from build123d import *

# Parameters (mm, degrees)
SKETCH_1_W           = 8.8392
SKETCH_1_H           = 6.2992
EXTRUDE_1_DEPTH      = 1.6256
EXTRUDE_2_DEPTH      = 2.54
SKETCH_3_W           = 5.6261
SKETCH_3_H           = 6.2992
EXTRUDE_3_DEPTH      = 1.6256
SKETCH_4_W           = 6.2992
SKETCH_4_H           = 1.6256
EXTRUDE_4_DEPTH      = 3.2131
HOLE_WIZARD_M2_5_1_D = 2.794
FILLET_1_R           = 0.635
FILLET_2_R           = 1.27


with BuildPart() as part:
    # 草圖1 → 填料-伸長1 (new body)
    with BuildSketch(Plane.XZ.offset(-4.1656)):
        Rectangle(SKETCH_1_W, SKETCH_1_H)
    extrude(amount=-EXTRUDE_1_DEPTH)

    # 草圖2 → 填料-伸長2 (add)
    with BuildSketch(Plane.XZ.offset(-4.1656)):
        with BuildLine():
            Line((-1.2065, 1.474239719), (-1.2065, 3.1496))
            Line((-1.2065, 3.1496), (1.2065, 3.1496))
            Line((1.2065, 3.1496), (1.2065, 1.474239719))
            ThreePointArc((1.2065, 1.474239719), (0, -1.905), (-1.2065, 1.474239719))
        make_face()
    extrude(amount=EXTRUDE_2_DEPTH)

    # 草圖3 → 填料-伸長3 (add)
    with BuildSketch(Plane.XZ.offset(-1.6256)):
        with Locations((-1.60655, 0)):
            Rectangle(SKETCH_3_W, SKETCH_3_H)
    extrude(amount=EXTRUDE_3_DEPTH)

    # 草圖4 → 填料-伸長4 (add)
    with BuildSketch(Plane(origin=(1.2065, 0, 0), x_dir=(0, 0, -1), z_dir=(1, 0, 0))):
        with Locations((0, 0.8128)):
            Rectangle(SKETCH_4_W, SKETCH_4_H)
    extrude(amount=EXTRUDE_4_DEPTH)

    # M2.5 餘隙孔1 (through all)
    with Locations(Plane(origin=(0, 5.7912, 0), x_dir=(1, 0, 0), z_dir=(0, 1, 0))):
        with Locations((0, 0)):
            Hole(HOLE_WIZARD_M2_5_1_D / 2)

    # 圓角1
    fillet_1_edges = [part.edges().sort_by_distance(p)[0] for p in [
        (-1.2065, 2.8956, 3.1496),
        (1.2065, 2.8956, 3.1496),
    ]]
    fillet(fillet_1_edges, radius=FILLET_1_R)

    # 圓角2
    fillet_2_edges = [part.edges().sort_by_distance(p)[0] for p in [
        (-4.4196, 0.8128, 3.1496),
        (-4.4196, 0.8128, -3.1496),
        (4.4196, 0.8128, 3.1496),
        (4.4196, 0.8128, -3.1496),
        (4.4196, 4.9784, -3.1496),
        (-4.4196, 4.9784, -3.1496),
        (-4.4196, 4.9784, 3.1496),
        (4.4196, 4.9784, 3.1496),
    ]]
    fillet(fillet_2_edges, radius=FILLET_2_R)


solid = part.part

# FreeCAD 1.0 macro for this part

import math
import FreeCAD as App
import Part
import Sketcher
Q = App.Units.Quantity


def edges_at(feature, points):
    """Names of the edges that pass closest to the given points."""
    edges = feature.Shape.Edges
    near = lambda p: min(range(len(edges)), key=lambda i: edges[i].distToShape(Part.Vertex(*p))[0])
    return sorted({f"Edge{near(p) + 1}" for p in points})

doc = App.newDocument("Part")
body = doc.addObject("PartDesign::Body", "Body")

sketch1 = body.newObject("Sketcher::SketchObject", "Sketch")
sketch1.AttachmentSupport = (doc.getObject("XZ_Plane"), [""])
sketch1.MapMode = "FlatFace"
sketch1.AttachmentOffset = App.Placement(App.Vector(0, 0, -0.164 * 25.4), App.Rotation())
sketch1.addGeometry([
    Part.LineSegment(App.Vector(-4, 3, 0), App.Vector(-4, -3, 0)),
    Part.LineSegment(App.Vector(-4, -3, 0), App.Vector(4, -3, 0)),
    Part.LineSegment(App.Vector(4, -3, 0), App.Vector(4, 3, 0)),
    Part.LineSegment(App.Vector(4, 3, 0), App.Vector(-4, 3, 0)),
], False)
sketch1.addConstraint([
    Sketcher.Constraint("Coincident", 0, 2, 1, 1),
    Sketcher.Constraint("Coincident", 1, 2, 2, 1),
    Sketcher.Constraint("Coincident", 2, 2, 3, 1),
    Sketcher.Constraint("Coincident", 3, 2, 0, 1),
    Sketcher.Constraint("Vertical", 0),
    Sketcher.Constraint("Horizontal", 1),
    Sketcher.Constraint("Vertical", 2),
    Sketcher.Constraint("Horizontal", 3),
    Sketcher.Constraint("Symmetric", 0, 2, 2, 2, -1, 1),
    Sketcher.Constraint("DistanceX", 1, 1, 1, 2, Q("0.348 in")),
    Sketcher.Constraint("DistanceY", 0, 2, 0, 1, Q("0.248 in")),
])
pad1 = body.newObject("PartDesign::Pad", "Pad")
pad1.Profile = sketch1
pad1.Length = Q("0.064 in")
pad1.Reversed = True

sketch2 = body.newObject("Sketcher::SketchObject", "Sketch001")
sketch2.AttachmentSupport = (doc.getObject("XZ_Plane"), [""])
sketch2.MapMode = "FlatFace"
sketch2.AttachmentOffset = App.Placement(App.Vector(0, 0, -0.164 * 25.4), App.Rotation())
sketch2.addGeometry([
    Part.LineSegment(App.Vector(-1.2, 3.1, 0), App.Vector(-1.2, 1.5, 0)),
    Part.ArcOfCircle(Part.Circle(App.Vector(0, 0, 0), App.Vector(0, 0, 1), 1.9), math.radians(129), math.radians(411)),
    Part.LineSegment(App.Vector(1.2, 1.5, 0), App.Vector(1.2, 3.1, 0)),
    Part.LineSegment(App.Vector(1.2, 3.1, 0), App.Vector(-1.2, 3.1, 0)),
], False)
sketch2.addConstraint([
    Sketcher.Constraint("Coincident", 0, 2, 1, 1),
    Sketcher.Constraint("Coincident", 1, 2, 2, 1),
    Sketcher.Constraint("Coincident", 2, 2, 3, 1),
    Sketcher.Constraint("Coincident", 3, 2, 0, 1),
    Sketcher.Constraint("Vertical", 0),
    Sketcher.Constraint("Vertical", 2),
    Sketcher.Constraint("Horizontal", 3),
    Sketcher.Constraint("Coincident", 1, 3, -1, 1),
    Sketcher.Constraint("Horizontal", 0, 2, 1, 2),
    Sketcher.Constraint("Radius", 1, Q("0.075 in")),
    Sketcher.Constraint("DistanceX", 3, 2, 3, 1, Q("0.095 in")),
    Sketcher.Constraint("DistanceY", -1, 1, 2, 2, Q("0.124 in")),
])
pad2 = body.newObject("PartDesign::Pad", "Pad001")
pad2.Profile = sketch2
pad2.Length = Q("0.1 in")

sketch3 = body.newObject("Sketcher::SketchObject", "Sketch002")
sketch3.AttachmentSupport = (doc.getObject("XZ_Plane"), [""])
sketch3.MapMode = "FlatFace"
sketch3.AttachmentOffset = App.Placement(App.Vector(0, 0, -0.064 * 25.4), App.Rotation())
sketch3.addGeometry([
    Part.LineSegment(App.Vector(-4, 3, 0), App.Vector(-4, -3, 0)),
    Part.LineSegment(App.Vector(-4, -3, 0), App.Vector(1, -3, 0)),
    Part.LineSegment(App.Vector(1, -3, 0), App.Vector(1, 3, 0)),
    Part.LineSegment(App.Vector(1, 3, 0), App.Vector(-4, 3, 0)),
], False)
sketch3.addConstraint([
    Sketcher.Constraint("Coincident", 0, 2, 1, 1),
    Sketcher.Constraint("Coincident", 1, 2, 2, 1),
    Sketcher.Constraint("Coincident", 2, 2, 3, 1),
    Sketcher.Constraint("Coincident", 3, 2, 0, 1),
    Sketcher.Constraint("Vertical", 0),
    Sketcher.Constraint("Horizontal", 1),
    Sketcher.Constraint("Vertical", 2),
    Sketcher.Constraint("Horizontal", 3),
    Sketcher.Constraint("DistanceY", 0, 2, 0, 1, Q("0.248 in")),
    Sketcher.Constraint("DistanceX", 1, 1, 1, 2, Q("0.2215 in")),
    Sketcher.Constraint("DistanceX", 0, 2, -1, 1, Q("0.174 in")),
    Sketcher.Constraint("DistanceY", 0, 2, -1, 1, Q("0.124 in")),
])
pad3 = body.newObject("PartDesign::Pad", "Pad002")
pad3.Profile = sketch3
pad3.Length = Q("0.064 in")

sketch4 = body.newObject("Sketcher::SketchObject", "Sketch003")
sketch4.AttachmentSupport = (doc.getObject("YZ_Plane"), [""])
sketch4.MapMode = "FlatFace"
sketch4.AttachmentOffset = App.Placement(App.Vector(0, 0, 0.0475 * 25.4), App.Rotation())
sketch4.addGeometry([
    Part.LineSegment(App.Vector(1.6, 3.1, 0), App.Vector(0, 3.1, 0)),
    Part.LineSegment(App.Vector(0, 3.1, 0), App.Vector(0, -3.1, 0)),
    Part.LineSegment(App.Vector(0, -3.1, 0), App.Vector(1.6, -3.1, 0)),
    Part.LineSegment(App.Vector(1.6, -3.1, 0), App.Vector(1.6, 3.1, 0)),
], False)
sketch4.addConstraint([
    Sketcher.Constraint("Coincident", 0, 2, 1, 1),
    Sketcher.Constraint("Coincident", 1, 2, 2, 1),
    Sketcher.Constraint("Coincident", 2, 2, 3, 1),
    Sketcher.Constraint("Coincident", 3, 2, 0, 1),
    Sketcher.Constraint("Horizontal", 0),
    Sketcher.Constraint("Vertical", 1),
    Sketcher.Constraint("Horizontal", 2),
    Sketcher.Constraint("Vertical", 3),
    Sketcher.Constraint("Symmetric", 0, 2, 1, 2, -1, 1),
    Sketcher.Constraint("DistanceX", 0, 2, 0, 1, Q("0.064 in")),
    Sketcher.Constraint("DistanceY", 1, 2, 1, 1, Q("0.248 in")),
])
pad4 = body.newObject("PartDesign::Pad", "Pad003")
pad4.Profile = sketch4
pad4.Length = Q("0.1265 in")

sketch5 = body.newObject("Sketcher::SketchObject", "Sketch004")
sketch5.AttachmentSupport = (doc.getObject("XZ_Plane"), [""])
sketch5.MapMode = "FlatFace"
sketch5.AttachmentOffset = App.Placement(App.Vector(0, 0, -0.228 * 25.4), App.Rotation())
sketch5.addGeometry(Part.Circle(App.Vector(0, 0, 0), App.Vector(0, 0, 1), 1.4), False)
sketch5.addConstraint([
    Sketcher.Constraint("Coincident", 0, 3, -1, 1),
    Sketcher.Constraint("Diameter", 0, Q("0.11 in")),
])
doc.recompute()
hole = body.newObject("PartDesign::Hole", "Hole")
hole.Profile = sketch5
hole.ThreadType = "None"
hole.Diameter = Q("0.11 in")
hole.DepthType = "ThroughAll"
hole.Reversed = True
doc.recompute()

fillet = body.newObject("PartDesign::Fillet", "Fillet")
fillet.Base = (hole, edges_at(hole, [(-1.206, 2.896, 3.15), (1.206, 2.896, 3.15)]))
fillet.Radius = Q("0.025 in")
doc.recompute()

fillet2 = body.newObject("PartDesign::Fillet", "Fillet001")
fillet2.Base = (fillet, edges_at(fillet, [
    (-4.42, 0.813, 3.15),
    (-4.42, 0.813, -3.15),
    (4.42, 0.813, 3.15),
    (4.42, 0.813, -3.15),
    (4.42, 4.978, -3.15),
    (-4.42, 4.978, -3.15),
    (-4.42, 4.978, 3.15),
    (4.42, 4.978, 3.15),
]))
fillet2.Radius = Q("0.05 in")

doc.recompute()
